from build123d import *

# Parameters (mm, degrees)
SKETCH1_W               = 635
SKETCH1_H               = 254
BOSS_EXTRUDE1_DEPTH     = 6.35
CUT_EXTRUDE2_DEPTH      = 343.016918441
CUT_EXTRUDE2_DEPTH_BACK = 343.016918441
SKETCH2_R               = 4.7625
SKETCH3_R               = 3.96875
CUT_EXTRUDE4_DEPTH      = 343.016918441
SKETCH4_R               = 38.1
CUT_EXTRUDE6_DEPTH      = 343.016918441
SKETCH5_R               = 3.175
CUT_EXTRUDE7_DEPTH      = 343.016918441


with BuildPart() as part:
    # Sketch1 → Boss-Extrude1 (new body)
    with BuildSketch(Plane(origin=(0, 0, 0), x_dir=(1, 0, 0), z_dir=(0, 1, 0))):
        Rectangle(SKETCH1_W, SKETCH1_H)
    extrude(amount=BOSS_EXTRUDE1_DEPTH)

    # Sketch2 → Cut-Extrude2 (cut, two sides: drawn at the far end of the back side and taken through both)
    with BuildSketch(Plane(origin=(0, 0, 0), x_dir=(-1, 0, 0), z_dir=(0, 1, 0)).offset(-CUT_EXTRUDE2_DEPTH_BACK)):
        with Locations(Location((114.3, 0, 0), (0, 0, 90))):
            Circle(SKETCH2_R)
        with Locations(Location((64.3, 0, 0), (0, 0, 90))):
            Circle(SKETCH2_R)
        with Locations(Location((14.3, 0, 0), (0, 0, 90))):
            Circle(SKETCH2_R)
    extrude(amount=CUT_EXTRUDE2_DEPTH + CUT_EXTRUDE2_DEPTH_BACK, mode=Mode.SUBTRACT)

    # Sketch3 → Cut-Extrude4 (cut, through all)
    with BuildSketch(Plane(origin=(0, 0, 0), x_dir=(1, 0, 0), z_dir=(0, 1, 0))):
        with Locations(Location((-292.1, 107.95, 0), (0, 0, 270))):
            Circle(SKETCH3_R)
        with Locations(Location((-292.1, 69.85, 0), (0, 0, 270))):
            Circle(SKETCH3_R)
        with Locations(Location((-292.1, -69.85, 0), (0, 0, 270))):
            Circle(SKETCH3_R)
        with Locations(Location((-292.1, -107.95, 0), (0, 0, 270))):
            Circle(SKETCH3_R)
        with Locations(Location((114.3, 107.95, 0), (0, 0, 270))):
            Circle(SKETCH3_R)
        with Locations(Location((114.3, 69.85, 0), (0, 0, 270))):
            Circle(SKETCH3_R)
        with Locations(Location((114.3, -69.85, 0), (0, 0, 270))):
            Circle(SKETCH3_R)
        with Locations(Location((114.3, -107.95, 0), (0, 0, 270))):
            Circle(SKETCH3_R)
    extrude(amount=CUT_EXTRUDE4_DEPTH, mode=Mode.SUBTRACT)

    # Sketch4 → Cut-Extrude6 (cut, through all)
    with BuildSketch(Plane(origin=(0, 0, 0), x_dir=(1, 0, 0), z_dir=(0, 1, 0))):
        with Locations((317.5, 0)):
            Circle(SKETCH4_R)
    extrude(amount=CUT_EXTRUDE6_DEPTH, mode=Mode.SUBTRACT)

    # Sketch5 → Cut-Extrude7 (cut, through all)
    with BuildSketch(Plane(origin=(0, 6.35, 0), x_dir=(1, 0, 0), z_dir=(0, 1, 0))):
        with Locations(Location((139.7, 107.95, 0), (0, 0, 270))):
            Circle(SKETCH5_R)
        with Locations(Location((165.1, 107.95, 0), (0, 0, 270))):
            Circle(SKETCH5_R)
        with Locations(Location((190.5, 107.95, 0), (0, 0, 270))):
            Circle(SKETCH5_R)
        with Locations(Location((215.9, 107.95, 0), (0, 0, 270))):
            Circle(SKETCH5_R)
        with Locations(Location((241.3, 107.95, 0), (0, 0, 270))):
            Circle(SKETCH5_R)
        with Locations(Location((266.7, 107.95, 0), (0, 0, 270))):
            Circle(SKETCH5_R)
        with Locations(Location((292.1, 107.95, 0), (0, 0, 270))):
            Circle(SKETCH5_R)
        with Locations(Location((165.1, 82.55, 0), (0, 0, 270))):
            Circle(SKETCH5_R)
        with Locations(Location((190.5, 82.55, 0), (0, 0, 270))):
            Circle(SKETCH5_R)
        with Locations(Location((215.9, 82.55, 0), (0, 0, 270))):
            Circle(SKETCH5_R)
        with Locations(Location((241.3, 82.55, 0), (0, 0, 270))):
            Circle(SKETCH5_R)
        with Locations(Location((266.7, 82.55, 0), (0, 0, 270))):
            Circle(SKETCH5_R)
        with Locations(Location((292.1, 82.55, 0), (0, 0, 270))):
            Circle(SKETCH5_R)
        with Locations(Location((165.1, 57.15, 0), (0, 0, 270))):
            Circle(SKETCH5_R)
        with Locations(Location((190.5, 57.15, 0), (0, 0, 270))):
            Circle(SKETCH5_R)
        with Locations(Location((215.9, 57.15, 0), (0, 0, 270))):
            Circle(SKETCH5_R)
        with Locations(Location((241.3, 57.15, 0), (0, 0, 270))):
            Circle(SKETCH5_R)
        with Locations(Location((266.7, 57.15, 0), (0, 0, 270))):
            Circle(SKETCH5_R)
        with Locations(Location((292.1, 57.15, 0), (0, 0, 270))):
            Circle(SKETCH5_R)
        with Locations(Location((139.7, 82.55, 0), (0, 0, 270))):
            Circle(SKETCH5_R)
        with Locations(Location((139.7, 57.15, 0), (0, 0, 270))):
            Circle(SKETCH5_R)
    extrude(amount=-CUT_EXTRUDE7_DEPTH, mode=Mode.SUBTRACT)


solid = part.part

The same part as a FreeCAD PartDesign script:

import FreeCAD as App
import Part
import Sketcher

V = App.Vector
Q = App.Units.Quantity


def add_polygon(sketch, points):
    """Adds a closed chain of lines whose ends are joined by coincident constraints."""
    first, n = sketch.GeometryCount, len(points)
    for a, b in zip(points, points[1:] + points[:1]):
        sketch.addGeometry(Part.LineSegment(App.Vector(*a, 0), App.Vector(*b, 0)), False)
    for i in range(n):
        sketch.addConstraint(Sketcher.Constraint("Coincident", first + i, 2, first + (i + 1) % n, 1))

doc = App.newDocument("Part")
body = doc.addObject("PartDesign::Body", "Body")

# Sketch on XZ plane
sketch1 = body.newObject("Sketcher::SketchObject", "Sketch")
sketch1.AttachmentSupport = (doc.getObject("XZ_Plane"), [""])
sketch1.MapMode = "FlatFace"
add_polygon(sketch1, [(-317.5, -127), (-317.5, 127), (317.5, 127), (317.5, -127)])  # lines 0-3
sketch1.addConstraint(Sketcher.Constraint("Vertical", 0))
sketch1.addConstraint(Sketcher.Constraint("Horizontal", 1))
sketch1.addConstraint(Sketcher.Constraint("Vertical", 2))
sketch1.addConstraint(Sketcher.Constraint("Horizontal", 3))
sketch1.addConstraint(Sketcher.Constraint("Symmetric", 0, 2, 2, 2, -1, 1))
sketch1.addConstraint(Sketcher.Constraint("DistanceX", 1, 1, 1, 2, Q("25 in")))
sketch1.addConstraint(Sketcher.Constraint("DistanceY", 0, 1, 0, 2, Q("10 in")))
pad1 = body.newObject("PartDesign::Pad", "Pad")
pad1.Profile = sketch1
pad1.Length = Q("0.25 in")
pad1.Reversed = True

# Sketch on XZ plane
sketch2 = body.newObject("Sketcher::SketchObject", "Sketch001")
sketch2.AttachmentSupport = (doc.getObject("XZ_Plane"), [""])
sketch2.MapMode = "FlatFace"
sketch2.addGeometry(Part.Circle(V(-114.3, 0, 0), V(0, 0, 1), 4.7625), False)
sketch2.addGeometry(Part.Circle(V(-64.3, 0, 0), V(0, 0, 1), 4.7625), False)
sketch2.addGeometry(Part.Circle(V(-14.3, 0, 0), V(0, 0, 1), 4.7625), False)
sketch2.addConstraint(Sketcher.Constraint("Equal", 0, 1))
sketch2.addConstraint(Sketcher.Constraint("Equal", 1, 2))
sketch2.addConstraint(Sketcher.Constraint("PointOnObject", 0, 3, -1))
sketch2.addConstraint(Sketcher.Constraint("PointOnObject", 1, 3, -1))
sketch2.addConstraint(Sketcher.Constraint("PointOnObject", 2, 3, -1))
sketch2.addConstraint(Sketcher.Constraint("Diameter", 0, Q("0.375 in")))
sketch2.addConstraint(Sketcher.Constraint("DistanceX", 0, 3, -1, 1, Q("4.5 in")))
sketch2.addConstraint(Sketcher.Constraint("DistanceX", 1, 3, -1, 1, 64.3))
sketch2.addConstraint(Sketcher.Constraint("DistanceX", 2, 3, -1, 1, 14.3))
pocket1 = body.newObject("PartDesign::Pocket", "Pocket")
pocket1.Profile = sketch2
pocket1.Type = "ThroughAll"
pocket1.Midplane = True

# Sketch on XZ plane
sketch3 = body.newObject("Sketcher::SketchObject", "Sketch002")
sketch3.AttachmentSupport = (doc.getObject("XZ_Plane"), [""])
sketch3.MapMode = "FlatFace"
sketch3.addGeometry(Part.Circle(V(-292.1, -107.95, 0), V(0, 0, 1), 3.96875), False)
sketch3.addGeometry(Part.Circle(V(-292.1, -69.85, 0), V(0, 0, 1), 3.96875), False)
sketch3.addGeometry(Part.Circle(V(-292.1, 69.85, 0), V(0, 0, 1), 3.96875), False)
sketch3.addGeometry(Part.Circle(V(-292.1, 107.95, 0), V(0, 0, 1), 3.96875), False)
sketch3.addGeometry(Part.Circle(V(114.3, -107.95, 0), V(0, 0, 1), 3.96875), False)
sketch3.addGeometry(Part.Circle(V(114.3, -69.85, 0), V(0, 0, 1), 3.96875), False)
sketch3.addGeometry(Part.Circle(V(114.3, 69.85, 0), V(0, 0, 1), 3.96875), False)
sketch3.addGeometry(Part.Circle(V(114.3, 107.95, 0), V(0, 0, 1), 3.96875), False)
sketch3.addConstraint(Sketcher.Constraint("Equal", 0, 1))
sketch3.addConstraint(Sketcher.Constraint("Equal", 1, 2))
sketch3.addConstraint(Sketcher.Constraint("Equal", 2, 3))
sketch3.addConstraint(Sketcher.Constraint("Equal", 3, 4))
sketch3.addConstraint(Sketcher.Constraint("Equal", 4, 5))
sketch3.addConstraint(Sketcher.Constraint("Equal", 5, 6))
sketch3.addConstraint(Sketcher.Constraint("Equal", 6, 7))
sketch3.addConstraint(Sketcher.Constraint("Symmetric", 1, 3, 2, 3, -1))
sketch3.addConstraint(Sketcher.Constraint("Symmetric", 0, 3, 3, 3, -1))
sketch3.addConstraint(Sketcher.Constraint("Symmetric", 5, 3, 6, 3, -1))
sketch3.addConstraint(Sketcher.Constraint("Symmetric", 4, 3, 7, 3, -1))
sketch3.addConstraint(Sketcher.Constraint("Horizontal", 0, 3, 4, 3))
sketch3.addConstraint(Sketcher.Constraint("Horizontal", 1, 3, 5, 3))
sketch3.addConstraint(Sketcher.Constraint("Vertical", 0, 3, 1, 3))
sketch3.addConstraint(Sketcher.Constraint("Vertical", 4, 3, 5, 3))
sketch3.addConstraint(Sketcher.Constraint("Diameter", 0, Q("0.3125 in")))
sketch3.addConstraint(Sketcher.Constraint("DistanceY", 0, 3, 2, 3, Q("7 in")))
sketch3.addConstraint(Sketcher.Constraint("DistanceX", 0, 3, 4, 3, Q("16 in")))
sketch3.addConstraint(Sketcher.Constraint("DistanceX", 0, 3, -1, 1, Q("11.5 in")))
sketch3.addConstraint(Sketcher.Constraint("DistanceY", 0, 3, 1, 3, Q("1.5 in")))
pocket2 = body.newObject("PartDesign::Pocket", "Pocket001")
pocket2.Profile = sketch3
pocket2.Type = "ThroughAll"

# Sketch on XZ plane
sketch4 = body.newObject("Sketcher::SketchObject", "Sketch003")
sketch4.AttachmentSupport = (doc.getObject("XZ_Plane"), [""])
sketch4.MapMode = "FlatFace"
sketch4.addGeometry(Part.Circle(V(317.5, 0, 0), V(0, 0, 1), 38.1), False)
sketch4.addConstraint(Sketcher.Constraint("PointOnObject", 0, 3, -1))
sketch4.addConstraint(Sketcher.Constraint("Diameter", 0, Q("3 in")))
sketch4.addConstraint(Sketcher.Constraint("DistanceX", -1, 1, 0, 3, Q("12.5 in")))
pocket3 = body.newObject("PartDesign::Pocket", "Pocket002")
pocket3.Profile = sketch4
pocket3.Type = "ThroughAll"

# Sketch on XZ plane
sketch5 = body.newObject("Sketcher::SketchObject", "Sketch004")
sketch5.AttachmentSupport = (doc.getObject("XZ_Plane"), [""])
sketch5.MapMode = "FlatFace"
sketch5.AttachmentOffset = App.Placement(V(0, 0, -0.25 * 25.4), App.Rotation())
sketch5.addGeometry(Part.Circle(V(139.7, -107.95, 0), V(0, 0, 1), 3.175), False)
sketch5.addGeometry(Part.Circle(V(165.1, -107.95, 0), V(0, 0, 1), 3.175), False)
sketch5.addGeometry(Part.Circle(V(190.5, -107.95, 0), V(0, 0, 1), 3.175), False)
sketch5.addGeometry(Part.Circle(V(215.9, -107.95, 0), V(0, 0, 1), 3.175), False)
sketch5.addGeometry(Part.Circle(V(241.3, -107.95, 0), V(0, 0, 1), 3.175), False)
sketch5.addGeometry(Part.Circle(V(266.7, -107.95, 0), V(0, 0, 1), 3.175), False)
sketch5.addGeometry(Part.Circle(V(292.1, -107.95, 0), V(0, 0, 1), 3.175), False)
sketch5.addGeometry(Part.Circle(V(165.1, -82.55, 0), V(0, 0, 1), 3.175), False)
sketch5.addGeometry(Part.Circle(V(190.5, -82.55, 0), V(0, 0, 1), 3.175), False)
sketch5.addGeometry(Part.Circle(V(215.9, -82.55, 0), V(0, 0, 1), 3.175), False)
sketch5.addGeometry(Part.Circle(V(241.3, -82.55, 0), V(0, 0, 1), 3.175), False)
sketch5.addGeometry(Part.Circle(V(266.7, -82.55, 0), V(0, 0, 1), 3.175), False)
sketch5.addGeometry(Part.Circle(V(292.1, -82.55, 0), V(0, 0, 1), 3.175), False)
sketch5.addGeometry(Part.Circle(V(165.1, -57.15, 0), V(0, 0, 1), 3.175), False)
sketch5.addGeometry(Part.Circle(V(190.5, -57.15, 0), V(0, 0, 1), 3.175), False)
sketch5.addGeometry(Part.Circle(V(215.9, -57.15, 0), V(0, 0, 1), 3.175), False)
sketch5.addGeometry(Part.Circle(V(241.3, -57.15, 0), V(0, 0, 1), 3.175), False)
sketch5.addGeometry(Part.Circle(V(266.7, -57.15, 0), V(0, 0, 1), 3.175), False)
sketch5.addGeometry(Part.Circle(V(292.1, -57.15, 0), V(0, 0, 1), 3.175), False)
sketch5.addGeometry(Part.Circle(V(139.7, -82.55, 0), V(0, 0, 1), 3.175), False)
sketch5.addGeometry(Part.Circle(V(139.7, -57.15, 0), V(0, 0, 1), 3.175), False)
sketch5.addConstraint(Sketcher.Constraint("Equal", 0, 1))
sketch5.addConstraint(Sketcher.Constraint("Equal", 1, 2))
sketch5.addConstraint(Sketcher.Constraint("Equal", 2, 3))
sketch5.addConstraint(Sketcher.Constraint("Equal", 3, 4))
sketch5.addConstraint(Sketcher.Constraint("Equal", 4, 5))
sketch5.addConstraint(Sketcher.Constraint("Equal", 5, 6))
sketch5.addConstraint(Sketcher.Constraint("Equal", 6, 7))
sketch5.addConstraint(Sketcher.Constraint("Equal", 7, 8))
sketch5.addConstraint(Sketcher.Constraint("Equal", 8, 9))
sketch5.addConstraint(Sketcher.Constraint("Equal", 9, 10))
sketch5.addConstraint(Sketcher.Constraint("Equal", 10, 11))
sketch5.addConstraint(Sketcher.Constraint("Equal", 11, 12))
sketch5.addConstraint(Sketcher.Constraint("Equal", 12, 13))
sketch5.addConstraint(Sketcher.Constraint("Equal", 13, 14))
sketch5.addConstraint(Sketcher.Constraint("Equal", 14, 15))
sketch5.addConstraint(Sketcher.Constraint("Equal", 15, 16))
sketch5.addConstraint(Sketcher.Constraint("Equal", 16, 17))
sketch5.addConstraint(Sketcher.Constraint("Equal", 17, 18))
sketch5.addConstraint(Sketcher.Constraint("Equal", 18, 19))
sketch5.addConstraint(Sketcher.Constraint("Equal", 19, 20))
sketch5.addConstraint(Sketcher.Constraint("Horizontal", 0, 3, 1, 3))
sketch5.addConstraint(Sketcher.Constraint("Horizontal", 1, 3, 2, 3))
sketch5.addConstraint(Sketcher.Constraint("Horizontal", 2, 3, 3, 3))
sketch5.addConstraint(Sketcher.Constraint("Horizontal", 3, 3, 4, 3))
sketch5.addConstraint(Sketcher.Constraint("Horizontal", 4, 3, 5, 3))
sketch5.addConstraint(Sketcher.Constraint("Horizontal", 5, 3, 6, 3))
sketch5.addConstraint(Sketcher.Constraint("Horizontal", 7, 3, 8, 3))
sketch5.addConstraint(Sketcher.Constraint("Horizontal", 8, 3, 9, 3))
sketch5.addConstraint(Sketcher.Constraint("Horizontal", 9, 3, 10, 3))
sketch5.addConstraint(Sketcher.Constraint("Horizontal", 10, 3, 11, 3))
sketch5.addConstraint(Sketcher.Constraint("Horizontal", 11, 3, 12, 3))
sketch5.addConstraint(Sketcher.Constraint("Horizontal", 13, 3, 14, 3))
sketch5.addConstraint(Sketcher.Constraint("Horizontal", 14, 3, 15, 3))
sketch5.addConstraint(Sketcher.Constraint("Horizontal", 15, 3, 16, 3))
sketch5.addConstraint(Sketcher.Constraint("Horizontal", 16, 3, 17, 3))
sketch5.addConstraint(Sketcher.Constraint("Horizontal", 17, 3, 18, 3))
sketch5.addConstraint(Sketcher.Constraint("Horizontal", 12, 3, 19, 3))
sketch5.addConstraint(Sketcher.Constraint("Horizontal", 18, 3, 20, 3))
sketch5.addConstraint(Sketcher.Constraint("Vertical", 1, 3, 7, 3))
sketch5.addConstraint(Sketcher.Constraint("Vertical", 2, 3, 8, 3))
sketch5.addConstraint(Sketcher.Constraint("Vertical", 3, 3, 9, 3))
sketch5.addConstraint(Sketcher.Constraint("Vertical", 4, 3, 10, 3))
sketch5.addConstraint(Sketcher.Constraint("Vertical", 5, 3, 11, 3))
sketch5.addConstraint(Sketcher.Constraint("Vertical", 6, 3, 12, 3))
sketch5.addConstraint(Sketcher.Constraint("Vertical", 7, 3, 13, 3))
sketch5.addConstraint(Sketcher.Constraint("Vertical", 8, 3, 14, 3))
sketch5.addConstraint(Sketcher.Constraint("Vertical", 9, 3, 15, 3))
sketch5.addConstraint(Sketcher.Constraint("Vertical", 10, 3, 16, 3))
sketch5.addConstraint(Sketcher.Constraint("Vertical", 11, 3, 17, 3))
sketch5.addConstraint(Sketcher.Constraint("Vertical", 12, 3, 18, 3))
sketch5.addConstraint(Sketcher.Constraint("Vertical", 0, 3, 19, 3))
sketch5.addConstraint(Sketcher.Constraint("Vertical", 19, 3, 20, 3))
sketch5.addConstraint(Sketcher.Constraint("Diameter", 0, Q("0.25 in")))
sketch5.addConstraint(Sketcher.Constraint("DistanceX", 0, 3, 1, 3, Q("1 in")))
sketch5.addConstraint(Sketcher.Constraint("DistanceX", 1, 3, 2, 3, Q("1 in")))
sketch5.addConstraint(Sketcher.Constraint("DistanceX", 2, 3, 3, 3, Q("1 in")))
sketch5.addConstraint(Sketcher.Constraint("DistanceX", 3, 3, 4, 3, Q("1 in")))
sketch5.addConstraint(Sketcher.Constraint("DistanceX", 4, 3, 5, 3, Q("1 in")))
sketch5.addConstraint(Sketcher.Constraint("DistanceX", 5, 3, 6, 3, Q("1 in")))
sketch5.addConstraint(Sketcher.Constraint("DistanceY", 1, 3, 7, 3, Q("1 in")))
sketch5.addConstraint(Sketcher.Constraint("DistanceY", 7, 3, 13, 3, Q("1 in")))
sketch5.addConstraint(Sketcher.Constraint("DistanceX", -1, 1, 0, 3, Q("5.5 in")))
sketch5.addConstraint(Sketcher.Constraint("DistanceY", 0, 3, -1, 1, Q("4.25 in")))
pocket4 = body.newObject("PartDesign::Pocket", "Pocket003")
pocket4.Profile = sketch5
pocket4.Type = "ThroughAll"
pocket4.Reversed = True

doc.recompute()
